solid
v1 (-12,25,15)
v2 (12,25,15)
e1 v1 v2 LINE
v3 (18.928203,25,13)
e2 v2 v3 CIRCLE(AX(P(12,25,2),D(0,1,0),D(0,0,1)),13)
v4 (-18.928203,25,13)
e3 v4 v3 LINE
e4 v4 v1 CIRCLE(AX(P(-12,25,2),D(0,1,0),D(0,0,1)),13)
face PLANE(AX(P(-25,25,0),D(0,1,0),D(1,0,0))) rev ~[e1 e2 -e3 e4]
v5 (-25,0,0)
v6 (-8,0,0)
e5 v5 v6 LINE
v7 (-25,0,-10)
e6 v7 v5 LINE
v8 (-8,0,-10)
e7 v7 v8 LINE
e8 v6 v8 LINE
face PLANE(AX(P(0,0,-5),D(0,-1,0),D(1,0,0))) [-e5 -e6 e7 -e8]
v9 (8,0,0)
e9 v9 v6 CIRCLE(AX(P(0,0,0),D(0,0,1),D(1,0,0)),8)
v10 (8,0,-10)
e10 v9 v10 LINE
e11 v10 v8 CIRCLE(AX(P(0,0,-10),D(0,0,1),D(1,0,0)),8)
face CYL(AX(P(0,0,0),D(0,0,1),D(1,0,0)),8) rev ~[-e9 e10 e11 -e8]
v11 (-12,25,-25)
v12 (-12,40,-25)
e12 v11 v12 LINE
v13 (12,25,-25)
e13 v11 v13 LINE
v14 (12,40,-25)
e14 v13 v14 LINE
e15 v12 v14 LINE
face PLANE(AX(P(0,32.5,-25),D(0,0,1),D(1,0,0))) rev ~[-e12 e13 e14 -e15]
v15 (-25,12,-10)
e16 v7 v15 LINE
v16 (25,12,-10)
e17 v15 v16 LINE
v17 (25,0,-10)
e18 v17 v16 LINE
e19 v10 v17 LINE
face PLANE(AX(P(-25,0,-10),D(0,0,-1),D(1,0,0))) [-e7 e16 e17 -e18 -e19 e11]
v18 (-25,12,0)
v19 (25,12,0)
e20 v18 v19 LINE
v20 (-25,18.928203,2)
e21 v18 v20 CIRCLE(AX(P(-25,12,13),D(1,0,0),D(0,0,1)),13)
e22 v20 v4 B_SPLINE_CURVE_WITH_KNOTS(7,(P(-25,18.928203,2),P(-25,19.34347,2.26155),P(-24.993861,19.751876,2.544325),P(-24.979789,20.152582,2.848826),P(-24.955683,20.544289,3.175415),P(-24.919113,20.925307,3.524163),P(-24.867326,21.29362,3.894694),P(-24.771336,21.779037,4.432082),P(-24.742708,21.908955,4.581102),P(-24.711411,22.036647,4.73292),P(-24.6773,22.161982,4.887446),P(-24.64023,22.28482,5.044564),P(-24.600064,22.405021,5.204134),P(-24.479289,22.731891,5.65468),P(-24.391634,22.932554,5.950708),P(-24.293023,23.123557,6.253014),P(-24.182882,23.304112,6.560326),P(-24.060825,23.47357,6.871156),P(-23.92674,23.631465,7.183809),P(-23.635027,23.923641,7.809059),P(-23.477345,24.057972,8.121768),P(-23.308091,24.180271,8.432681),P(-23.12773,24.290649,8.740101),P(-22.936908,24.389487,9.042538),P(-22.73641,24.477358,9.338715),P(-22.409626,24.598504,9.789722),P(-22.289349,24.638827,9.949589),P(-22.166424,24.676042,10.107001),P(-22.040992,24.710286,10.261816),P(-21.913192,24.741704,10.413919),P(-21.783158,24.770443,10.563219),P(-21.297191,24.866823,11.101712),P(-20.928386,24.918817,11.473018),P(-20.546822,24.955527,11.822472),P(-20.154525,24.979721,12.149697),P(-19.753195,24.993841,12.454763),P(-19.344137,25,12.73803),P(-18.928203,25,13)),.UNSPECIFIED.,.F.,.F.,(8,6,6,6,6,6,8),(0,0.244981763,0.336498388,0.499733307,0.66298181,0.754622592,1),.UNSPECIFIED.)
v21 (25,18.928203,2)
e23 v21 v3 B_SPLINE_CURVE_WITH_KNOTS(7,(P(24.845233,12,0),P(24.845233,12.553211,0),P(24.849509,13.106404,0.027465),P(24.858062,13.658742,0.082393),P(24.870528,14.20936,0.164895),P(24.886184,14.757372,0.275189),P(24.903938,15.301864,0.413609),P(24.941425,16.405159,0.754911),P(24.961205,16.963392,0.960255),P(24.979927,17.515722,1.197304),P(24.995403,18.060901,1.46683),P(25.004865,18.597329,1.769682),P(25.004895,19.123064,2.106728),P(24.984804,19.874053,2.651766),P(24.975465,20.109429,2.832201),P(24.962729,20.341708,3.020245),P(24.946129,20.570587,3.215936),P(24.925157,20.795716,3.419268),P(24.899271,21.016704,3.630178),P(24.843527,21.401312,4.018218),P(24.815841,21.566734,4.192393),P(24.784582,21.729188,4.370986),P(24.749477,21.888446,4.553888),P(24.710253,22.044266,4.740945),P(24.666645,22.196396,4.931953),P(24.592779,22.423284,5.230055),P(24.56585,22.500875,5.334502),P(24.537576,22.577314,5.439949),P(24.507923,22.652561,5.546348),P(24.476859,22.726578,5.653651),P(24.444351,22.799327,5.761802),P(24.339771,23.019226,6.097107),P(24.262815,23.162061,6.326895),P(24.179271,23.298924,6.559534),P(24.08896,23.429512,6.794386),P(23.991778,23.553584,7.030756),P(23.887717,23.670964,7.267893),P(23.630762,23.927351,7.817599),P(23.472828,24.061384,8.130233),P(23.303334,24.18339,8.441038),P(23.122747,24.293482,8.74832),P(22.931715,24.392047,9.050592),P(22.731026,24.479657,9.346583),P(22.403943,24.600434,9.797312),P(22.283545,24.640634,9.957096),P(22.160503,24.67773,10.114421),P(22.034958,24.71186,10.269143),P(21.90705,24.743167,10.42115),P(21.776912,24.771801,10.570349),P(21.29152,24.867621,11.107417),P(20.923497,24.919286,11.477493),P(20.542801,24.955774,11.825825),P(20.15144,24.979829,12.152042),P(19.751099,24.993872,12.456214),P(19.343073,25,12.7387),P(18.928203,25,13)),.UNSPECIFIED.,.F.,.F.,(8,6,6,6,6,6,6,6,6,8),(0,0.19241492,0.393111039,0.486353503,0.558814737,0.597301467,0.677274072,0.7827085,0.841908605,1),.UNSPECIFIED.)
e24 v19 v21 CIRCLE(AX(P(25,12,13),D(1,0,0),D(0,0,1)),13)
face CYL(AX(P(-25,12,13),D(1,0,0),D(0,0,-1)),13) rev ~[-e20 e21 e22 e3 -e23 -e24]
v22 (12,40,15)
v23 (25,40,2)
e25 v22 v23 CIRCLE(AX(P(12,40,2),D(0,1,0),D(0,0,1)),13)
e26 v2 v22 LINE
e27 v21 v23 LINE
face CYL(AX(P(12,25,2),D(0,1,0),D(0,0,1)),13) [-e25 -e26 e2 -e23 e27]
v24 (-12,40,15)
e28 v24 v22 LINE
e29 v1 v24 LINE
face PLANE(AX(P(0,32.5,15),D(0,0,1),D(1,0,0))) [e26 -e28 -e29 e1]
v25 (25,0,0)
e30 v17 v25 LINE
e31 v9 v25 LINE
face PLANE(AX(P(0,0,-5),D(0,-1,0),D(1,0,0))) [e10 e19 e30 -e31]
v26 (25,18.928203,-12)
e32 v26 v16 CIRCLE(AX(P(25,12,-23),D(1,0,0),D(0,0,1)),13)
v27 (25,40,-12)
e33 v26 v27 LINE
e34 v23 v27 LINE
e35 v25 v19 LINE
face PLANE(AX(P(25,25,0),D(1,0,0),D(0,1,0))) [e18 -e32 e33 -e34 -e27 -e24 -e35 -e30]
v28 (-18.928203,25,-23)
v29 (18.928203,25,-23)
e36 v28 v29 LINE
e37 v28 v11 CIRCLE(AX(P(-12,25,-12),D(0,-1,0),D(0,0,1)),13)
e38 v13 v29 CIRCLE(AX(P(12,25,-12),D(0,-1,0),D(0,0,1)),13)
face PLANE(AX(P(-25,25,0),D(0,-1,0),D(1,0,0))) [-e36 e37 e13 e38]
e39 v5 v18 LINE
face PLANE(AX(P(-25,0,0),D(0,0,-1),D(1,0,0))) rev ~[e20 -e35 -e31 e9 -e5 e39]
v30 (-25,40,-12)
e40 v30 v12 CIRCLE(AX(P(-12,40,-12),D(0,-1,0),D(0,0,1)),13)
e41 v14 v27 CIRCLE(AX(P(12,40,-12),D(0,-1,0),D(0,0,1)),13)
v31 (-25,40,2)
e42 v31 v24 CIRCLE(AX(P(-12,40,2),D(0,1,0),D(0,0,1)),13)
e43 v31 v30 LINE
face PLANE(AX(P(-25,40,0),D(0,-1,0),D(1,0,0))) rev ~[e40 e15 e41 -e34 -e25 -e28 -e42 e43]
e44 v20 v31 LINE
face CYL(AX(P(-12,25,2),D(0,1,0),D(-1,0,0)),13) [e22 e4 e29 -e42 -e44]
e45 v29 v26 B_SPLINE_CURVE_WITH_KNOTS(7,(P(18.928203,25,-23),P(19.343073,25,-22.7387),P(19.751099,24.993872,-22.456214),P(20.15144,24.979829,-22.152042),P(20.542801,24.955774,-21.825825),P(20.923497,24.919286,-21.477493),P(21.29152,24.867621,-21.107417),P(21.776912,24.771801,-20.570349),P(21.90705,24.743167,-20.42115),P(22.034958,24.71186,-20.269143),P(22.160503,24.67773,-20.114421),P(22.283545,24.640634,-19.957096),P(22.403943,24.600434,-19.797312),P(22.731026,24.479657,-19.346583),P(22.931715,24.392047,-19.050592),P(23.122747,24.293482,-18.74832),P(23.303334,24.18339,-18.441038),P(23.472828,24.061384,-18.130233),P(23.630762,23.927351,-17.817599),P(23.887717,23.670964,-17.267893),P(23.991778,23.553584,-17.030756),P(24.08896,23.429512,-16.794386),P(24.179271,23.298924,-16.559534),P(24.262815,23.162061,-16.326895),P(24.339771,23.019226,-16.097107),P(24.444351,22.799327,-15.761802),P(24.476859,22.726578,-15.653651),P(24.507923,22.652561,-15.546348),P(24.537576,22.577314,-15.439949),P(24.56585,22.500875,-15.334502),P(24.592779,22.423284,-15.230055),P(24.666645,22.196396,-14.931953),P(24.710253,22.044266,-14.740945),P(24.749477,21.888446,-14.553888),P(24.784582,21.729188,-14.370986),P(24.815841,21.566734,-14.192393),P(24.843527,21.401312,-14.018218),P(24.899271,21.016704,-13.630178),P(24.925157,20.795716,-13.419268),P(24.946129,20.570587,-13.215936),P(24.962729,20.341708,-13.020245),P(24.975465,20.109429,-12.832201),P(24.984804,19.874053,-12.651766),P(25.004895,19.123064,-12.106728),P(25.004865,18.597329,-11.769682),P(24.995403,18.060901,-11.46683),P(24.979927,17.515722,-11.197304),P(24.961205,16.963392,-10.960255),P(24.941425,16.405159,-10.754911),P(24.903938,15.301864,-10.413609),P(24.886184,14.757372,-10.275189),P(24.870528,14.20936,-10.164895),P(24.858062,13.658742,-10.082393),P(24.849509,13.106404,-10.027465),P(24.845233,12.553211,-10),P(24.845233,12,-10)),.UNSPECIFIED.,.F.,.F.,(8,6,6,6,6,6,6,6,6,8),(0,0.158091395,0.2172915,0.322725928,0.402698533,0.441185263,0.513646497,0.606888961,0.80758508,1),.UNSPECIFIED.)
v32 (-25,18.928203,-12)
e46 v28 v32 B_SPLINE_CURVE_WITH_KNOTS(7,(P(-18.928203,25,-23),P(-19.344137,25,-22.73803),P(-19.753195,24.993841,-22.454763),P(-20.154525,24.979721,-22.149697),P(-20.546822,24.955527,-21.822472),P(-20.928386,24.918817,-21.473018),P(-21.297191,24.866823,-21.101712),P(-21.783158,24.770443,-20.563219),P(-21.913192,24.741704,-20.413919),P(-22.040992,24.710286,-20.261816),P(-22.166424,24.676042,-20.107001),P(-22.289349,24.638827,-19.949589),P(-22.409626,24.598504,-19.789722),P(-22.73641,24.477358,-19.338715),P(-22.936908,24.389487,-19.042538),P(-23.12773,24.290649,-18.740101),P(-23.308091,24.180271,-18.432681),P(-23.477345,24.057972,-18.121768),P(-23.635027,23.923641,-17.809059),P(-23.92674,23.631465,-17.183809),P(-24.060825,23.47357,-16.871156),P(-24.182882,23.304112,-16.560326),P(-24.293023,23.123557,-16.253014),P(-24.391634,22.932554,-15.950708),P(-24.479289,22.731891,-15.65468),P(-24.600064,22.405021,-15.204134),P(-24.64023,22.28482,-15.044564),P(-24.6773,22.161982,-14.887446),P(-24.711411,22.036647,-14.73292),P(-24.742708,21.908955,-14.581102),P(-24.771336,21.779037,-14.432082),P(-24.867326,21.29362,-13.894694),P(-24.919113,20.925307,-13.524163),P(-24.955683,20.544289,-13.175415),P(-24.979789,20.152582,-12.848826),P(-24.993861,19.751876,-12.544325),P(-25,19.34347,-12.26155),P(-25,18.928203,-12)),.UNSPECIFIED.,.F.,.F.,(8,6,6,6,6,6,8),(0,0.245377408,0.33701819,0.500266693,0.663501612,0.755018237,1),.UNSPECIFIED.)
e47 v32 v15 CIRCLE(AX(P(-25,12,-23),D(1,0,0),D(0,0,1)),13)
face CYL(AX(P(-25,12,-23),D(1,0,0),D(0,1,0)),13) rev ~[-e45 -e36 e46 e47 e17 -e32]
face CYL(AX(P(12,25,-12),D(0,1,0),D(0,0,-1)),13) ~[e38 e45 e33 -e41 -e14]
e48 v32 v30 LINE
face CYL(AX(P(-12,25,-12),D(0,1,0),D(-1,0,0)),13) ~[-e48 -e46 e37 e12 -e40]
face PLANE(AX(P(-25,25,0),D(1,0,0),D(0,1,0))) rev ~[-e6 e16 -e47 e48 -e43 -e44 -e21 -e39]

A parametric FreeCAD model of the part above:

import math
import FreeCAD as App
import Part
import Sketcher
from FreeCAD import Vector


def edges_at(feature, points):
    """Names of the edges that pass closest to the given points."""
    edges = feature.Shape.Edges
    near = lambda p: min(range(len(edges)), key=lambda i: edges[i].distToShape(Part.Vertex(*p))[0])
    return sorted({f"Edge{near(p) + 1}" for p in points})

doc = App.newDocument("Part")
body = doc.addObject("PartDesign::Body", "Body")

sketch1 = doc.addObject("Sketcher::SketchObject", "Sketch")
body.addObject(sketch1)
sketch1.AttachmentSupport = (doc.XZ_Plane, [""])
sketch1.MapMode = "FlatFace"
sketch1.addGeometry([
    Part.LineSegment(Vector(-25, 0, 0), Vector(-25, -10, 0)),
    Part.LineSegment(Vector(-25, -10, 0), Vector(25, -10, 0)),
    Part.LineSegment(Vector(25, -10, 0), Vector(25, 0, 0)),
    Part.LineSegment(Vector(25, 0, 0), Vector(-25, 0, 0)),
], False)
sketch1.addConstraint([
    Sketcher.Constraint("Coincident", 0, 2, 1, 1),
    Sketcher.Constraint("Coincident", 1, 2, 2, 1),
    Sketcher.Constraint("Coincident", 2, 2, 3, 1),
    Sketcher.Constraint("Coincident", 3, 2, 0, 1),
    Sketcher.Constraint("Vertical", 0),
    Sketcher.Constraint("Horizontal", 1),
    Sketcher.Constraint("Vertical", 2),
    Sketcher.Constraint("Horizontal", 3),
    Sketcher.Constraint("Symmetric", 2, 2, 3, 2, -1, 1),
    Sketcher.Constraint("DistanceX", 1, 1, 1, 2, 50.0),
    Sketcher.Constraint("DistanceY", 0, 2, 0, 1, 10.0),
])
pad1 = doc.addObject("PartDesign::Pad", "Pad")
body.addObject(pad1)
pad1.Profile = sketch1
pad1.Length = 25
pad1.Reversed = True

sketch2 = doc.addObject("Sketcher::SketchObject", "Sketch001")
body.addObject(sketch2)
sketch2.AttachmentSupport = (doc.XY_Plane, [""])
sketch2.MapMode = "FlatFace"
sketch2.addGeometry([
    Part.LineSegment(Vector(-25, 40, 0), Vector(-25, 25, 0)),
    Part.LineSegment(Vector(-25, 25, 0), Vector(25, 25, 0)),
    Part.LineSegment(Vector(25, 25, 0), Vector(25, 40, 0)),
    Part.LineSegment(Vector(25, 40, 0), Vector(-25, 40, 0)),
], False)
sketch2.addConstraint([
    Sketcher.Constraint("Coincident", 0, 2, 1, 1),
    Sketcher.Constraint("Coincident", 1, 2, 2, 1),
    Sketcher.Constraint("Coincident", 2, 2, 3, 1),
    Sketcher.Constraint("Coincident", 3, 2, 0, 1),
    Sketcher.Constraint("Vertical", 0),
    Sketcher.Constraint("Horizontal", 1),
    Sketcher.Constraint("Vertical", 2),
    Sketcher.Constraint("Horizontal", 3),
    Sketcher.Constraint("DistanceX", 1, 1, 1, 2, 50.0),
    Sketcher.Constraint("DistanceY", 0, 2, 0, 1, 15.0),
    Sketcher.Constraint("DistanceX", 0, 2, -1, 1, 25.0),
    Sketcher.Constraint("DistanceY", -1, 1, 0, 2, 25.0),
])
pad2 = doc.addObject("PartDesign::Pad", "Pad001")
body.addObject(pad2)
pad2.Profile = sketch2
pad2.Type = "TwoLengths"
pad2.Length = 15
pad2.Length2 = 25

sketch3 = doc.addObject("Sketcher::SketchObject", "Sketch002")
body.addObject(sketch3)
sketch3.AttachmentSupport = (doc.XY_Plane, [""])
sketch3.MapMode = "FlatFace"
sketch3.addGeometry([
    Part.LineSegment(Vector(-8, 0, 0), Vector(8, 0, 0)),
    Part.ArcOfCircle(Part.Circle(Vector(0, 0, 0), Vector(0, 0, 1), 8), math.radians(0), math.radians(180)),
], False)
sketch3.addConstraint([
    Sketcher.Constraint("Coincident", 0, 1, 1, 2),
    Sketcher.Constraint("Coincident", 1, 1, 0, 2),
    Sketcher.Constraint("Horizontal", 0),
    Sketcher.Constraint("Coincident", 1, 3, -1, 1),
    Sketcher.Constraint("PointOnObject", 0, 1, -1),
    Sketcher.Constraint("Radius", 1, 8.0),
])
pocket1 = doc.addObject("PartDesign::Pocket", "Pocket")
body.addObject(pocket1)
pocket1.Profile = sketch3
pocket1.Length = 25
doc.recompute()

fillet = doc.addObject("PartDesign::Fillet", "Fillet")
body.addObject(fillet)
fillet.Base = (pocket1, edges_at(pocket1, [
    (-25, 32.5, 15),
    (25, 32.5, 15),
    (25, 32.5, -25),
    (-25, 32.5, -25),
]))
fillet.Radius = 13
doc.recompute()

fillet2 = doc.addObject("PartDesign::Fillet", "Fillet001")
body.addObject(fillet2)
fillet2.Base = (fillet, edges_at(fillet, [(0, 25, 0), (0, 25, -10)]))
fillet2.Radius = 13

doc.recompute()
